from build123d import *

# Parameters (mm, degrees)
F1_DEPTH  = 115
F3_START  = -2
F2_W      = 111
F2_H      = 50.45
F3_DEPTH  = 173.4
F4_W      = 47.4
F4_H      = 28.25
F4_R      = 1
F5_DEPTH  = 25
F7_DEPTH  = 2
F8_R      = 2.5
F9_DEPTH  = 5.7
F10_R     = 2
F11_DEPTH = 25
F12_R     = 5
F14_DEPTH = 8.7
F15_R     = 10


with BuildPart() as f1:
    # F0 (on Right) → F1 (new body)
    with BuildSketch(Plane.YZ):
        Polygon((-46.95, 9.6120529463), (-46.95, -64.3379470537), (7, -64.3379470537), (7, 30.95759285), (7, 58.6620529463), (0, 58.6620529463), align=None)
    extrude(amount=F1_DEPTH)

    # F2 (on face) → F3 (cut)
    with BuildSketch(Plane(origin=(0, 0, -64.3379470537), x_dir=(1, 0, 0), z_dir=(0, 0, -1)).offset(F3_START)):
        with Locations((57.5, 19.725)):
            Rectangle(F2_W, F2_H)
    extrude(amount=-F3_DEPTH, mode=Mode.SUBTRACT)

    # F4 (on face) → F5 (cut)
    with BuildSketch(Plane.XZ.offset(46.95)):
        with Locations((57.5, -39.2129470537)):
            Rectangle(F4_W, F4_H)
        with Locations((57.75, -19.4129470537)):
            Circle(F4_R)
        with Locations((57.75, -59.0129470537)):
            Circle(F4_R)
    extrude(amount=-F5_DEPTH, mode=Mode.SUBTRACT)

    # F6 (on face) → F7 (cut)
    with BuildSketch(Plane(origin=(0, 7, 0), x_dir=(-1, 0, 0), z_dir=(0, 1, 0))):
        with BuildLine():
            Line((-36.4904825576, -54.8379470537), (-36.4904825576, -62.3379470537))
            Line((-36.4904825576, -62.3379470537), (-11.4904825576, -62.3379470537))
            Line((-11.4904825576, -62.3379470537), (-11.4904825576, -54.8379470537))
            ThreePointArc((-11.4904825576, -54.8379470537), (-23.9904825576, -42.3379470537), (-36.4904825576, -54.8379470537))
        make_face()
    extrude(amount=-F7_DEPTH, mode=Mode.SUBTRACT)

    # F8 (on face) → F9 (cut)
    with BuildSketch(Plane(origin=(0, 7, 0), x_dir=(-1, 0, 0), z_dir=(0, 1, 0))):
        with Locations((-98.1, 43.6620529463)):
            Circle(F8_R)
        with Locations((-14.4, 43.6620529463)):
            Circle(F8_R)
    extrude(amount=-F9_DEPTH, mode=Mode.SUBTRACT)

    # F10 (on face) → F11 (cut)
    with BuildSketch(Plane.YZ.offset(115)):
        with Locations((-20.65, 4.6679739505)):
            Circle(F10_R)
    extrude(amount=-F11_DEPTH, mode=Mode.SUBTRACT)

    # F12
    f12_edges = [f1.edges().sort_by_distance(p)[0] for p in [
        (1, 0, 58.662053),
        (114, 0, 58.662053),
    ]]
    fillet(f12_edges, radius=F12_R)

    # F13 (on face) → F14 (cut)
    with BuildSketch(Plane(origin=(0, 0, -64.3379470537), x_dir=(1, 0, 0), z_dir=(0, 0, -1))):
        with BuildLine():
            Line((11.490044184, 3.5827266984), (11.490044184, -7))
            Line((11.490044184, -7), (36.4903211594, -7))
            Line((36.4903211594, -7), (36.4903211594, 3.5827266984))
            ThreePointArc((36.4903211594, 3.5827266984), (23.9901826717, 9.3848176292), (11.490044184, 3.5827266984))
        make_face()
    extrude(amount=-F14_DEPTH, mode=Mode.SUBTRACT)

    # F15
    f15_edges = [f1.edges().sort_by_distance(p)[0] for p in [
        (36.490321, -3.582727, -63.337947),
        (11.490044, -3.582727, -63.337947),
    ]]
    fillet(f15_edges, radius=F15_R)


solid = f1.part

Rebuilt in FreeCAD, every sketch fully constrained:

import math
import FreeCAD as App
import Part
import Sketcher
from FreeCAD import Vector
Q = App.Units.Quantity


def edges_at(feature, points):
    """Names of the edges that pass closest to the given points."""
    edges = feature.Shape.Edges
    near = lambda p: min(range(len(edges)), key=lambda i: edges[i].distToShape(Part.Vertex(*p))[0])
    return sorted({f"Edge{near(p) + 1}" for p in points})

doc = App.newDocument("Part")
body = doc.addObject("PartDesign::Body", "Body")

sketch1 = body.newObject("Sketcher::SketchObject", "Sketch")
sketch1.AttachmentSupport = (doc.getObject("YZ_Plane"), [""])
sketch1.MapMode = "FlatFace"
sketch1.addGeometry(Part.LineSegment(Vector(-46.95, 9.612053, 0), Vector(-46.95, -64.337947, 0)), False)
sketch1.addGeometry(Part.LineSegment(Vector(-46.95, -64.337947, 0), Vector(7, -64.337947, 0)), False)
sketch1.addGeometry(Part.LineSegment(Vector(7, -64.337947, 0), Vector(7, 58.662053, 0)), False)
sketch1.addGeometry(Part.LineSegment(Vector(7, 58.662053, 0), Vector(0, 58.662053, 0)), False)
sketch1.addGeometry(Part.LineSegment(Vector(0, 58.662053, 0), Vector(-46.95, 9.612053, 0)), False)
sketch1.addConstraint(Sketcher.Constraint("Coincident", 0, 2, 1, 1))
sketch1.addConstraint(Sketcher.Constraint("Coincident", 1, 2, 2, 1))
sketch1.addConstraint(Sketcher.Constraint("Coincident", 2, 2, 3, 1))
sketch1.addConstraint(Sketcher.Constraint("Coincident", 3, 2, 4, 1))
sketch1.addConstraint(Sketcher.Constraint("Coincident", 4, 2, 0, 1))
sketch1.addConstraint(Sketcher.Constraint("Vertical", 0))
sketch1.addConstraint(Sketcher.Constraint("Horizontal", 1))
sketch1.addConstraint(Sketcher.Constraint("Vertical", 2))
sketch1.addConstraint(Sketcher.Constraint("Horizontal", 3))
sketch1.addConstraint(Sketcher.Constraint("PointOnObject", 3, 2, -2))
sketch1.addConstraint(Sketcher.Constraint("DistanceX", 3, 2, 3, 1, Q("7 mm")))
sketch1.addConstraint(Sketcher.Constraint("DistanceY", 2, 1, 2, 2, Q("123 mm")))
sketch1.addConstraint(Sketcher.Constraint("DistanceX", 1, 1, 1, 2, Q("53.95 mm")))
sketch1.addConstraint(Sketcher.Constraint("DistanceY", 0, 2, 0, 1, Q("73.95 mm")))
sketch1.addConstraint(Sketcher.Constraint("DistanceY", 0, 2, -1, 1, Q("64.337947 mm")))
pad1 = body.newObject("PartDesign::Pad", "Pad")
pad1.Profile = sketch1
pad1.Length = 115

sketch2 = body.newObject("Sketcher::SketchObject", "Sketch001")
sketch2.AttachmentSupport = (doc.getObject("XY_Plane"), [""])
sketch2.MapMode = "FlatFace"
sketch2.AttachmentOffset = App.Placement(Vector(0, 0, -62.337947), App.Rotation())
sketch2.addGeometry(Part.LineSegment(Vector(2, -44.95, 0), Vector(2, 5.5, 0)), False)
sketch2.addGeometry(Part.LineSegment(Vector(2, 5.5, 0), Vector(113, 5.5, 0)), False)
sketch2.addGeometry(Part.LineSegment(Vector(113, 5.5, 0), Vector(113, -44.95, 0)), False)
sketch2.addGeometry(Part.LineSegment(Vector(113, -44.95, 0), Vector(2, -44.95, 0)), False)
sketch2.addConstraint(Sketcher.Constraint("Coincident", 0, 2, 1, 1))
sketch2.addConstraint(Sketcher.Constraint("Coincident", 1, 2, 2, 1))
sketch2.addConstraint(Sketcher.Constraint("Coincident", 2, 2, 3, 1))
sketch2.addConstraint(Sketcher.Constraint("Coincident", 3, 2, 0, 1))
sketch2.addConstraint(Sketcher.Constraint("Vertical", 0))
sketch2.addConstraint(Sketcher.Constraint("Horizontal", 1))
sketch2.addConstraint(Sketcher.Constraint("Vertical", 2))
sketch2.addConstraint(Sketcher.Constraint("Horizontal", 3))
sketch2.addConstraint(Sketcher.Constraint("DistanceX", 1, 1, 1, 2, Q("111 mm")))
sketch2.addConstraint(Sketcher.Constraint("DistanceX", -1, 1, 0, 2, Q("2 mm")))
sketch2.addConstraint(Sketcher.Constraint("DistanceY", 0, 1, 0, 2, Q("50.45 mm")))
sketch2.addConstraint(Sketcher.Constraint("DistanceY", -1, 1, 0, 2, Q("5.5 mm")))
pocket1 = body.newObject("PartDesign::Pocket", "Pocket")
pocket1.Profile = sketch2
pocket1.Length = 173.4
pocket1.Reversed = True

sketch3 = body.newObject("Sketcher::SketchObject", "Sketch002")
sketch3.AttachmentSupport = (doc.getObject("XZ_Plane"), [""])
sketch3.MapMode = "FlatFace"
sketch3.AttachmentOffset = App.Placement(Vector(0, 0, 46.95), App.Rotation())
sketch3.addGeometry(Part.LineSegment(Vector(33.8, -25.087947, 0), Vector(33.8, -53.337947, 0)), False)
sketch3.addGeometry(Part.LineSegment(Vector(33.8, -53.337947, 0), Vector(81.2, -53.337947, 0)), False)
sketch3.addGeometry(Part.LineSegment(Vector(81.2, -53.337947, 0), Vector(81.2, -25.087947, 0)), False)
sketch3.addGeometry(Part.LineSegment(Vector(81.2, -25.087947, 0), Vector(33.8, -25.087947, 0)), False)
sketch3.addGeometry(Part.Circle(Vector(57.75, -19.412947, 0), Vector(0, 0, 1), 1), False)
sketch3.addGeometry(Part.Circle(Vector(57.75, -59.012947, 0), Vector(0, 0, 1), 1), False)
sketch3.addConstraint(Sketcher.Constraint("Coincident", 0, 2, 1, 1))
sketch3.addConstraint(Sketcher.Constraint("Coincident", 1, 2, 2, 1))
sketch3.addConstraint(Sketcher.Constraint("Coincident", 2, 2, 3, 1))
sketch3.addConstraint(Sketcher.Constraint("Coincident", 3, 2, 0, 1))
sketch3.addConstraint(Sketcher.Constraint("Vertical", 0))
sketch3.addConstraint(Sketcher.Constraint("Horizontal", 1))
sketch3.addConstraint(Sketcher.Constraint("Vertical", 2))
sketch3.addConstraint(Sketcher.Constraint("Horizontal", 3))
sketch3.addConstraint(Sketcher.Constraint("Equal", 4, 5))
sketch3.addConstraint(Sketcher.Constraint("Vertical", 4, 3, 5, 3))
sketch3.addConstraint(Sketcher.Constraint("Diameter", 4, Q("2 mm")))
sketch3.addConstraint(Sketcher.Constraint("DistanceX", 1, 1, 1, 2, Q("47.4 mm")))
sketch3.addConstraint(Sketcher.Constraint("DistanceY", 0, 2, 0, 1, Q("28.25 mm")))
sketch3.addConstraint(Sketcher.Constraint("DistanceX", -1, 1, 0, 2, Q("33.8 mm")))
sketch3.addConstraint(Sketcher.Constraint("DistanceY", 5, 3, 4, 3, Q("39.6 mm")))
sketch3.addConstraint(Sketcher.Constraint("DistanceX", -1, 1, 4, 3, Q("57.75 mm")))
sketch3.addConstraint(Sketcher.Constraint("DistanceY", 5, 3, 0, 2, Q("5.675 mm")))
sketch3.addConstraint(Sketcher.Constraint("DistanceY", 4, 3, -1, 1, Q("19.412947 mm")))
pocket2 = body.newObject("PartDesign::Pocket", "Pocket001")
pocket2.Profile = sketch3
pocket2.Length = 25

sketch4 = body.newObject("Sketcher::SketchObject", "Sketch003")
sketch4.AttachmentSupport = (doc.getObject("XZ_Plane"), [""])
sketch4.MapMode = "FlatFace"
sketch4.AttachmentOffset = App.Placement(Vector(0, 0, -7), App.Rotation())
sketch4.addGeometry(Part.LineSegment(Vector(36.490483, -54.837947, 0), Vector(36.490483, -62.337947, 0)), False)
sketch4.addGeometry(Part.LineSegment(Vector(36.490483, -62.337947, 0), Vector(11.490483, -62.337947, 0)), False)
sketch4.addGeometry(Part.LineSegment(Vector(11.490483, -62.337947, 0), Vector(11.490483, -54.837947, 0)), False)
sketch4.addGeometry(Part.ArcOfCircle(Part.Circle(Vector(23.990483, -54.837947, 0), Vector(0, 0, 1), 12.5), math.radians(0), math.radians(180)), False)
sketch4.addConstraint(Sketcher.Constraint("Coincident", 0, 2, 1, 1))
sketch4.addConstraint(Sketcher.Constraint("Coincident", 1, 2, 2, 1))
sketch4.addConstraint(Sketcher.Constraint("Tangent", 2, 2, 3, 2))
sketch4.addConstraint(Sketcher.Constraint("Tangent", 3, 1, 0, 1))
sketch4.addConstraint(Sketcher.Constraint("Vertical", 0))
sketch4.addConstraint(Sketcher.Constraint("Horizontal", 1))
sketch4.addConstraint(Sketcher.Constraint("Vertical", 2))
sketch4.addConstraint(Sketcher.Constraint("Radius", 3, Q("12.5 mm")))
sketch4.addConstraint(Sketcher.Constraint("DistanceY", 0, 2, 0, 1, Q("7.5 mm")))
sketch4.addConstraint(Sketcher.Constraint("DistanceX", -1, 1, 3, 3, Q("23.990483 mm")))
sketch4.addConstraint(Sketcher.Constraint("DistanceY", 3, 3, -1, 1, Q("54.837947 mm")))
pocket3 = body.newObject("PartDesign::Pocket", "Pocket002")
pocket3.Profile = sketch4
pocket3.Length = 2
pocket3.Reversed = True

sketch5 = body.newObject("Sketcher::SketchObject", "Sketch004")
sketch5.AttachmentSupport = (doc.getObject("XZ_Plane"), [""])
sketch5.MapMode = "FlatFace"
sketch5.AttachmentOffset = App.Placement(Vector(0, 0, -7), App.Rotation())
sketch5.addGeometry(Part.Circle(Vector(98.1, 43.662053, 0), Vector(0, 0, 1), 2.5), False)
sketch5.addGeometry(Part.Circle(Vector(14.4, 43.662053, 0), Vector(0, 0, 1), 2.5), False)
sketch5.addConstraint(Sketcher.Constraint("Equal", 0, 1))
sketch5.addConstraint(Sketcher.Constraint("Horizontal", 0, 3, 1, 3))
sketch5.addConstraint(Sketcher.Constraint("Diameter", 0, Q("5 mm")))
sketch5.addConstraint(Sketcher.Constraint("DistanceX", -1, 1, 0, 3, Q("98.1 mm")))
sketch5.addConstraint(Sketcher.Constraint("DistanceX", -1, 1, 1, 3, Q("14.4 mm")))
sketch5.addConstraint(Sketcher.Constraint("DistanceY", -1, 1, 0, 3, Q("43.662053 mm")))
pocket4 = body.newObject("PartDesign::Pocket", "Pocket003")
pocket4.Profile = sketch5
pocket4.Length = 5.7
pocket4.Reversed = True

sketch6 = body.newObject("Sketcher::SketchObject", "Sketch005")
sketch6.AttachmentSupport = (doc.getObject("YZ_Plane"), [""])
sketch6.MapMode = "FlatFace"
sketch6.AttachmentOffset = App.Placement(Vector(0, 0, 115), App.Rotation())
sketch6.addGeometry(Part.Circle(Vector(-20.65, 4.667974, 0), Vector(0, 0, 1), 2), False)
sketch6.addConstraint(Sketcher.Constraint("Diameter", 0, Q("4 mm")))
sketch6.addConstraint(Sketcher.Constraint("DistanceX", 0, 3, -1, 1, Q("20.65 mm")))
sketch6.addConstraint(Sketcher.Constraint("DistanceY", -1, 1, 0, 3, Q("4.667974 mm")))
pocket5 = body.newObject("PartDesign::Pocket", "Pocket004")
pocket5.Profile = sketch6
pocket5.Length = 25
doc.recompute()

fillet = body.newObject("PartDesign::Fillet", "Fillet")
fillet.Base = (pocket5, edges_at(pocket5, [(1, 0, 58.662), (114, 0, 58.662)]))
fillet.Radius = 5

sketch7 = body.newObject("Sketcher::SketchObject", "Sketch006")
sketch7.AttachmentSupport = (doc.getObject("XY_Plane"), [""])
sketch7.MapMode = "FlatFace"
sketch7.AttachmentOffset = App.Placement(Vector(0, 0, -64.337947), App.Rotation())
sketch7.addGeometry(Part.LineSegment(Vector(11.490044, -3.582727, 0), Vector(11.490044, 7, 0)), False)
sketch7.addGeometry(Part.LineSegment(Vector(11.490044, 7, 0), Vector(36.490321, 7, 0)), False)
sketch7.addGeometry(Part.LineSegment(Vector(36.490321, 7, 0), Vector(36.490321, -3.582727, 0)), False)
sketch7.addGeometry(Part.ArcOfCircle(Part.Circle(Vector(23.990183, 6.9815, 0), Vector(0, 0, 1), 16.366317), math.radians(-139.797887), math.radians(-40.202113)), False)
sketch7.addConstraint(Sketcher.Constraint("Coincident", 0, 2, 1, 1))
sketch7.addConstraint(Sketcher.Constraint("Coincident", 1, 2, 2, 1))
sketch7.addConstraint(Sketcher.Constraint("Coincident", 2, 2, 3, 2))
sketch7.addConstraint(Sketcher.Constraint("Coincident", 3, 1, 0, 1))
sketch7.addConstraint(Sketcher.Constraint("Vertical", 0))
sketch7.addConstraint(Sketcher.Constraint("Horizontal", 1))
sketch7.addConstraint(Sketcher.Constraint("Vertical", 2))
sketch7.addConstraint(Sketcher.Constraint("Horizontal", 2, 2, 3, 1))
sketch7.addConstraint(Sketcher.Constraint("DistanceY", -1, 1, 0, 2, Q("7 mm")))
sketch7.addConstraint(Sketcher.Constraint("Radius", 3, Q("16.366317 mm")))
sketch7.addConstraint(Sketcher.Constraint("DistanceY", -1, 1, 3, 3, Q("6.9815 mm")))
sketch7.addConstraint(Sketcher.Constraint("DistanceX", 1, 1, 1, 2, Q("25.000277 mm")))
sketch7.addConstraint(Sketcher.Constraint("DistanceX", -1, 1, 1, 2, Q("36.490321 mm")))
pocket6 = body.newObject("PartDesign::Pocket", "Pocket005")
pocket6.Profile = sketch7
pocket6.Length = 8.7
pocket6.Reversed = True
doc.recompute()

fillet2 = body.newObject("PartDesign::Fillet", "Fillet001")
fillet2.Base = (pocket6, edges_at(pocket6, [(36.49, -3.583, -63.338), (11.49, -3.583, -63.338)]))
fillet2.Radius = 10

doc.recompute()
